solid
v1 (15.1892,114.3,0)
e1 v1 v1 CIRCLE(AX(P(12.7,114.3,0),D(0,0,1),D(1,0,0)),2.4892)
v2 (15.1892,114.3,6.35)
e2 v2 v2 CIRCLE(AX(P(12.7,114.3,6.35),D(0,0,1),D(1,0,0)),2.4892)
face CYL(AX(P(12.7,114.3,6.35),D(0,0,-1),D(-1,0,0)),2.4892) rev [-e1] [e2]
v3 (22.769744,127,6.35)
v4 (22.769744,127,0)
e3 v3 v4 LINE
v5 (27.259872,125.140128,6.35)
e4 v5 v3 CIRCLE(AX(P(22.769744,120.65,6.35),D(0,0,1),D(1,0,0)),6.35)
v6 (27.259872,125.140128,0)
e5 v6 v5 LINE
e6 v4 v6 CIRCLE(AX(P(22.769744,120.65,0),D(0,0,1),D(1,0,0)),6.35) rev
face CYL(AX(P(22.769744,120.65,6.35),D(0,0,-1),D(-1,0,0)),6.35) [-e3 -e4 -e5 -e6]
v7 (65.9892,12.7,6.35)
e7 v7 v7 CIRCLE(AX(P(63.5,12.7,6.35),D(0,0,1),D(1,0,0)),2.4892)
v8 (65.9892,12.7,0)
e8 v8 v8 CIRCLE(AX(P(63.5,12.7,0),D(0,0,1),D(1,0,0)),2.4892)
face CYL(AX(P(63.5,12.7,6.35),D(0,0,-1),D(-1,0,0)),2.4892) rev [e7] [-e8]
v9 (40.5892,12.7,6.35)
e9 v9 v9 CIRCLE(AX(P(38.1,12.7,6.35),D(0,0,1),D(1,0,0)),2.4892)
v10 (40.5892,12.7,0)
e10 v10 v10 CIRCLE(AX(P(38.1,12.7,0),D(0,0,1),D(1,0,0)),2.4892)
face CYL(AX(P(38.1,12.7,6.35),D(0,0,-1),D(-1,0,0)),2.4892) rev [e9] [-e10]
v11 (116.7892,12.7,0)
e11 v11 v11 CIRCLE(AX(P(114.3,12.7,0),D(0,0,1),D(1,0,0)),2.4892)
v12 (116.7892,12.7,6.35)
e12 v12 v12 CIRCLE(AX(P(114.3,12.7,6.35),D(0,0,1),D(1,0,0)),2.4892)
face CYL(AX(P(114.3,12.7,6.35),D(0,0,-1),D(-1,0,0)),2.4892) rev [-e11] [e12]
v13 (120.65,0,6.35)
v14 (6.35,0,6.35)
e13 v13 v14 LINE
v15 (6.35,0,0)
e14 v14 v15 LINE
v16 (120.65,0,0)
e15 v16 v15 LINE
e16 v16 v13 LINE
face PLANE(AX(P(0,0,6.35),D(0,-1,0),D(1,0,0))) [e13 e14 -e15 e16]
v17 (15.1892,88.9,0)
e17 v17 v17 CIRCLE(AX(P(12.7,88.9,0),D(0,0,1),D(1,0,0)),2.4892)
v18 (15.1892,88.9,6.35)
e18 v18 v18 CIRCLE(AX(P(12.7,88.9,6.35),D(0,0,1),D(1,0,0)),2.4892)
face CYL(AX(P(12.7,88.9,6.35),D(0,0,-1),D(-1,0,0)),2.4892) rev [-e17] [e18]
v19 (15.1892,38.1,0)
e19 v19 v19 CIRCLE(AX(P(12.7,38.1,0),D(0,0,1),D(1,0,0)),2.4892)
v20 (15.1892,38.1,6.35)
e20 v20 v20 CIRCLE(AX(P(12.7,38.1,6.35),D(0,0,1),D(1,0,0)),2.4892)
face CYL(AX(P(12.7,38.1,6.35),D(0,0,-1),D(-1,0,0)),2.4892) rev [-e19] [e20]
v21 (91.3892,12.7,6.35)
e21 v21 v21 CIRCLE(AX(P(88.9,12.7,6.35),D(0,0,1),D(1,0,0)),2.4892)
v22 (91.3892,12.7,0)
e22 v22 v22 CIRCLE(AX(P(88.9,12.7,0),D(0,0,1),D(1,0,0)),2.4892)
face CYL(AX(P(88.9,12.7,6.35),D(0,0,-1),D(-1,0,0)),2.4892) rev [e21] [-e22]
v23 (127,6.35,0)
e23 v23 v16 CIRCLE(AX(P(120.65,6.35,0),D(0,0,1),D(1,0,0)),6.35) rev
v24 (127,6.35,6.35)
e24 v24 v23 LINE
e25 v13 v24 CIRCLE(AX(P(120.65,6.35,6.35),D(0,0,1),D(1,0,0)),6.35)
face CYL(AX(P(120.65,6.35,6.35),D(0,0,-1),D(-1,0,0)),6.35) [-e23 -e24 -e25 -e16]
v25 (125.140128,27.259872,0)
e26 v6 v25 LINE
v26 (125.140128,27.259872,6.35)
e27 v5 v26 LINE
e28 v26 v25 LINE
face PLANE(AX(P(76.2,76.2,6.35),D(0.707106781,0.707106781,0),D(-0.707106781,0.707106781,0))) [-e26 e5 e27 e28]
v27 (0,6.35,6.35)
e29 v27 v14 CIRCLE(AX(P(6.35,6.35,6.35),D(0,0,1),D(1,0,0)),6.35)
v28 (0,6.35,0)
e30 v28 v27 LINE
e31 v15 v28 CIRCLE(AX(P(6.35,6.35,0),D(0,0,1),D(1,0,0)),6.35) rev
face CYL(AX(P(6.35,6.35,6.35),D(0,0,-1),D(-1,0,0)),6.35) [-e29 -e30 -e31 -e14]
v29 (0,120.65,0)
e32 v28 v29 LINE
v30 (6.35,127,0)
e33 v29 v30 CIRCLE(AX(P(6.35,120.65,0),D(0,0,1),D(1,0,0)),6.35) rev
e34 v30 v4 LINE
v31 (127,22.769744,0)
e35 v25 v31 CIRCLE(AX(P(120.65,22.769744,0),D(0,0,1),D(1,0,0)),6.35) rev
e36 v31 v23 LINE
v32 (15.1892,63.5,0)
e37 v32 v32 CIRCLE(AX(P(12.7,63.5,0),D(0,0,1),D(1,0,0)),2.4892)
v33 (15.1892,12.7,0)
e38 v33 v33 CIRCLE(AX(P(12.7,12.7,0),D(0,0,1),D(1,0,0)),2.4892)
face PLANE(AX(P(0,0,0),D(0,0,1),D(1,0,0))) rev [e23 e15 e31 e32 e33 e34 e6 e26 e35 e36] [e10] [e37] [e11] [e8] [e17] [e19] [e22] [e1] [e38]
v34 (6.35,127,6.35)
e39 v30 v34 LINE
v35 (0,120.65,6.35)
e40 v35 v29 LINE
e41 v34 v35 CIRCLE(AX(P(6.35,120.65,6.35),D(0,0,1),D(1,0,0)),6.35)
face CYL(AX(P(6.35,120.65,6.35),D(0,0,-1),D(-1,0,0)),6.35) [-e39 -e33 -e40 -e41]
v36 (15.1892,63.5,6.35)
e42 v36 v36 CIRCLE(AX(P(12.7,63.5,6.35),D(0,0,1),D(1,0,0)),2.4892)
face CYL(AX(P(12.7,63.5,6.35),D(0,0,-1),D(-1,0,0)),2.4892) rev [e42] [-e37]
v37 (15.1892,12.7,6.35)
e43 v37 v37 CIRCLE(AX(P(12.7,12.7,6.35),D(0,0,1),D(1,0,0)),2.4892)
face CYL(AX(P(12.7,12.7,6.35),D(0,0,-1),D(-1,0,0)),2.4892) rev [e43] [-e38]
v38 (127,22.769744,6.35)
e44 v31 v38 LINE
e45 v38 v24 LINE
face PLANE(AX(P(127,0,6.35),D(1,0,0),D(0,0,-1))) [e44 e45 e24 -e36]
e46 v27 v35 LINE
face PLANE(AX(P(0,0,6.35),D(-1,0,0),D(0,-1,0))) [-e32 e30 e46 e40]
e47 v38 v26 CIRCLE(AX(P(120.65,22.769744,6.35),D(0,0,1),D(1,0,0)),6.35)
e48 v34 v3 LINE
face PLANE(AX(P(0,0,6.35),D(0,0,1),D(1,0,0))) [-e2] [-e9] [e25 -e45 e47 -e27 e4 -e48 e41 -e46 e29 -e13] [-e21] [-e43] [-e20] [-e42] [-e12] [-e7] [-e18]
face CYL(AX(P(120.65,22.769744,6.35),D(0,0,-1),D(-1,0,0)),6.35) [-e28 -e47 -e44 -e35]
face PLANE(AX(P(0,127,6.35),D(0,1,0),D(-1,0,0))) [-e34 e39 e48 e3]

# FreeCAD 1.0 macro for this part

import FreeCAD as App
import Part
import Sketcher
from FreeCAD import Vector
Q = App.Units.Quantity


def edges_at(feature, points):
    """Names of the edges that pass closest to the given points."""
    edges = feature.Shape.Edges
    near = lambda p: min(range(len(edges)), key=lambda i: edges[i].distToShape(Part.Vertex(*p))[0])
    return sorted({f"Edge{near(p) + 1}" for p in points})


def add_polygon(sketch, points):
    """Adds a closed chain of lines whose ends are joined by coincident constraints."""
    first, n = sketch.GeometryCount, len(points)
    for a, b in zip(points, points[1:] + points[:1]):
        sketch.addGeometry(Part.LineSegment(App.Vector(*a, 0), App.Vector(*b, 0)), False)
    for i in range(n):
        sketch.addConstraint(Sketcher.Constraint("Coincident", first + i, 2, first + (i + 1) % n, 1))

doc = App.newDocument("Part")
body = doc.addObject("PartDesign::Body", "Body")

sketch1 = body.newObject("Sketcher::SketchObject", "Sketch")
sketch1.AttachmentSupport = (doc.getObject("XY_Plane"), [""])
sketch1.MapMode = "FlatFace"
add_polygon(sketch1, [(0, 127), (0, 0), (127, 0), (127, 25.4), (25.4, 127)])
sketch1.addGeometry(Part.Circle(Vector(114.3, 12.7, 0), Vector(0, 0, 1), 2.5), False)
sketch1.addGeometry(Part.Circle(Vector(88.9, 12.7, 0), Vector(0, 0, 1), 2.5), False)
sketch1.addGeometry(Part.Circle(Vector(63.5, 12.7, 0), Vector(0, 0, 1), 2.5), False)
sketch1.addGeometry(Part.Circle(Vector(38.1, 12.7, 0), Vector(0, 0, 1), 2.5), False)
sketch1.addGeometry(Part.Circle(Vector(12.7, 12.7, 0), Vector(0, 0, 1), 2.5), False)
sketch1.addGeometry(Part.Circle(Vector(12.7, 38.1, 0), Vector(0, 0, 1), 2.5), False)
sketch1.addGeometry(Part.Circle(Vector(12.7, 63.5, 0), Vector(0, 0, 1), 2.5), False)
sketch1.addGeometry(Part.Circle(Vector(12.7, 88.9, 0), Vector(0, 0, 1), 2.5), False)
sketch1.addGeometry(Part.Circle(Vector(12.7, 114.3, 0), Vector(0, 0, 1), 2.5), False)
sketch1.addConstraint([
    Sketcher.Constraint("Vertical", 0),
    Sketcher.Constraint("Horizontal", 1),
    Sketcher.Constraint("Vertical", 2),
    Sketcher.Constraint("Horizontal", 4),
    Sketcher.Constraint("Coincident", 0, 2, -1, 1),
    Sketcher.Constraint("Equal", 5, 6),
    Sketcher.Constraint("Equal", 6, 7),
    Sketcher.Constraint("Equal", 7, 8),
    Sketcher.Constraint("Equal", 8, 9),
    Sketcher.Constraint("Equal", 9, 10),
    Sketcher.Constraint("Equal", 10, 11),
    Sketcher.Constraint("Equal", 11, 12),
    Sketcher.Constraint("Equal", 12, 13),
    Sketcher.Constraint("Horizontal", 5, 3, 6, 3),
    Sketcher.Constraint("Horizontal", 6, 3, 7, 3),
    Sketcher.Constraint("Horizontal", 7, 3, 8, 3),
    Sketcher.Constraint("Horizontal", 8, 3, 9, 3),
    Sketcher.Constraint("Vertical", 9, 3, 10, 3),
    Sketcher.Constraint("Vertical", 10, 3, 11, 3),
    Sketcher.Constraint("Vertical", 11, 3, 12, 3),
    Sketcher.Constraint("Vertical", 12, 3, 13, 3),
    Sketcher.Constraint("Equal", 1, 0),
    Sketcher.Constraint("Equal", 4, 2),
    Sketcher.Constraint("DistanceX", 1, 1, 1, 2, Q("5 in")),
    Sketcher.Constraint("DistanceX", 4, 2, 4, 1, Q("1 in")),
    Sketcher.Constraint("Diameter", 5, Q("0.196 in")),
    Sketcher.Constraint("DistanceX", 6, 3, 5, 3, Q("1 in")),
    Sketcher.Constraint("DistanceX", 7, 3, 6, 3, Q("1 in")),
    Sketcher.Constraint("DistanceX", 8, 3, 7, 3, Q("1 in")),
    Sketcher.Constraint("DistanceX", 9, 3, 8, 3, Q("1 in")),
    Sketcher.Constraint("DistanceY", 9, 3, 10, 3, Q("1 in")),
    Sketcher.Constraint("DistanceY", 10, 3, 11, 3, Q("1 in")),
    Sketcher.Constraint("DistanceY", 11, 3, 12, 3, Q("1 in")),
    Sketcher.Constraint("DistanceY", 12, 3, 13, 3, Q("1 in")),
    Sketcher.Constraint("DistanceX", -1, 1, 5, 3, Q("4.5 in")),
    Sketcher.Constraint("DistanceY", -1, 1, 5, 3, Q("0.5 in")),
])
pad1 = body.newObject("PartDesign::Pad", "Pad")
pad1.Profile = sketch1
pad1.Length = Q("0.25 in")
doc.recompute()

fillet = body.newObject("PartDesign::Fillet", "Fillet")
fillet.Base = (pad1, edges_at(pad1, [
    (127, 0, 3.175),
    (0, 0, 3.175),
    (0, 127, 3.175),
    (25.4, 127, 3.175),
    (127, 25.4, 3.175),
]))
fillet.Radius = Q("0.25 in")

doc.recompute()
